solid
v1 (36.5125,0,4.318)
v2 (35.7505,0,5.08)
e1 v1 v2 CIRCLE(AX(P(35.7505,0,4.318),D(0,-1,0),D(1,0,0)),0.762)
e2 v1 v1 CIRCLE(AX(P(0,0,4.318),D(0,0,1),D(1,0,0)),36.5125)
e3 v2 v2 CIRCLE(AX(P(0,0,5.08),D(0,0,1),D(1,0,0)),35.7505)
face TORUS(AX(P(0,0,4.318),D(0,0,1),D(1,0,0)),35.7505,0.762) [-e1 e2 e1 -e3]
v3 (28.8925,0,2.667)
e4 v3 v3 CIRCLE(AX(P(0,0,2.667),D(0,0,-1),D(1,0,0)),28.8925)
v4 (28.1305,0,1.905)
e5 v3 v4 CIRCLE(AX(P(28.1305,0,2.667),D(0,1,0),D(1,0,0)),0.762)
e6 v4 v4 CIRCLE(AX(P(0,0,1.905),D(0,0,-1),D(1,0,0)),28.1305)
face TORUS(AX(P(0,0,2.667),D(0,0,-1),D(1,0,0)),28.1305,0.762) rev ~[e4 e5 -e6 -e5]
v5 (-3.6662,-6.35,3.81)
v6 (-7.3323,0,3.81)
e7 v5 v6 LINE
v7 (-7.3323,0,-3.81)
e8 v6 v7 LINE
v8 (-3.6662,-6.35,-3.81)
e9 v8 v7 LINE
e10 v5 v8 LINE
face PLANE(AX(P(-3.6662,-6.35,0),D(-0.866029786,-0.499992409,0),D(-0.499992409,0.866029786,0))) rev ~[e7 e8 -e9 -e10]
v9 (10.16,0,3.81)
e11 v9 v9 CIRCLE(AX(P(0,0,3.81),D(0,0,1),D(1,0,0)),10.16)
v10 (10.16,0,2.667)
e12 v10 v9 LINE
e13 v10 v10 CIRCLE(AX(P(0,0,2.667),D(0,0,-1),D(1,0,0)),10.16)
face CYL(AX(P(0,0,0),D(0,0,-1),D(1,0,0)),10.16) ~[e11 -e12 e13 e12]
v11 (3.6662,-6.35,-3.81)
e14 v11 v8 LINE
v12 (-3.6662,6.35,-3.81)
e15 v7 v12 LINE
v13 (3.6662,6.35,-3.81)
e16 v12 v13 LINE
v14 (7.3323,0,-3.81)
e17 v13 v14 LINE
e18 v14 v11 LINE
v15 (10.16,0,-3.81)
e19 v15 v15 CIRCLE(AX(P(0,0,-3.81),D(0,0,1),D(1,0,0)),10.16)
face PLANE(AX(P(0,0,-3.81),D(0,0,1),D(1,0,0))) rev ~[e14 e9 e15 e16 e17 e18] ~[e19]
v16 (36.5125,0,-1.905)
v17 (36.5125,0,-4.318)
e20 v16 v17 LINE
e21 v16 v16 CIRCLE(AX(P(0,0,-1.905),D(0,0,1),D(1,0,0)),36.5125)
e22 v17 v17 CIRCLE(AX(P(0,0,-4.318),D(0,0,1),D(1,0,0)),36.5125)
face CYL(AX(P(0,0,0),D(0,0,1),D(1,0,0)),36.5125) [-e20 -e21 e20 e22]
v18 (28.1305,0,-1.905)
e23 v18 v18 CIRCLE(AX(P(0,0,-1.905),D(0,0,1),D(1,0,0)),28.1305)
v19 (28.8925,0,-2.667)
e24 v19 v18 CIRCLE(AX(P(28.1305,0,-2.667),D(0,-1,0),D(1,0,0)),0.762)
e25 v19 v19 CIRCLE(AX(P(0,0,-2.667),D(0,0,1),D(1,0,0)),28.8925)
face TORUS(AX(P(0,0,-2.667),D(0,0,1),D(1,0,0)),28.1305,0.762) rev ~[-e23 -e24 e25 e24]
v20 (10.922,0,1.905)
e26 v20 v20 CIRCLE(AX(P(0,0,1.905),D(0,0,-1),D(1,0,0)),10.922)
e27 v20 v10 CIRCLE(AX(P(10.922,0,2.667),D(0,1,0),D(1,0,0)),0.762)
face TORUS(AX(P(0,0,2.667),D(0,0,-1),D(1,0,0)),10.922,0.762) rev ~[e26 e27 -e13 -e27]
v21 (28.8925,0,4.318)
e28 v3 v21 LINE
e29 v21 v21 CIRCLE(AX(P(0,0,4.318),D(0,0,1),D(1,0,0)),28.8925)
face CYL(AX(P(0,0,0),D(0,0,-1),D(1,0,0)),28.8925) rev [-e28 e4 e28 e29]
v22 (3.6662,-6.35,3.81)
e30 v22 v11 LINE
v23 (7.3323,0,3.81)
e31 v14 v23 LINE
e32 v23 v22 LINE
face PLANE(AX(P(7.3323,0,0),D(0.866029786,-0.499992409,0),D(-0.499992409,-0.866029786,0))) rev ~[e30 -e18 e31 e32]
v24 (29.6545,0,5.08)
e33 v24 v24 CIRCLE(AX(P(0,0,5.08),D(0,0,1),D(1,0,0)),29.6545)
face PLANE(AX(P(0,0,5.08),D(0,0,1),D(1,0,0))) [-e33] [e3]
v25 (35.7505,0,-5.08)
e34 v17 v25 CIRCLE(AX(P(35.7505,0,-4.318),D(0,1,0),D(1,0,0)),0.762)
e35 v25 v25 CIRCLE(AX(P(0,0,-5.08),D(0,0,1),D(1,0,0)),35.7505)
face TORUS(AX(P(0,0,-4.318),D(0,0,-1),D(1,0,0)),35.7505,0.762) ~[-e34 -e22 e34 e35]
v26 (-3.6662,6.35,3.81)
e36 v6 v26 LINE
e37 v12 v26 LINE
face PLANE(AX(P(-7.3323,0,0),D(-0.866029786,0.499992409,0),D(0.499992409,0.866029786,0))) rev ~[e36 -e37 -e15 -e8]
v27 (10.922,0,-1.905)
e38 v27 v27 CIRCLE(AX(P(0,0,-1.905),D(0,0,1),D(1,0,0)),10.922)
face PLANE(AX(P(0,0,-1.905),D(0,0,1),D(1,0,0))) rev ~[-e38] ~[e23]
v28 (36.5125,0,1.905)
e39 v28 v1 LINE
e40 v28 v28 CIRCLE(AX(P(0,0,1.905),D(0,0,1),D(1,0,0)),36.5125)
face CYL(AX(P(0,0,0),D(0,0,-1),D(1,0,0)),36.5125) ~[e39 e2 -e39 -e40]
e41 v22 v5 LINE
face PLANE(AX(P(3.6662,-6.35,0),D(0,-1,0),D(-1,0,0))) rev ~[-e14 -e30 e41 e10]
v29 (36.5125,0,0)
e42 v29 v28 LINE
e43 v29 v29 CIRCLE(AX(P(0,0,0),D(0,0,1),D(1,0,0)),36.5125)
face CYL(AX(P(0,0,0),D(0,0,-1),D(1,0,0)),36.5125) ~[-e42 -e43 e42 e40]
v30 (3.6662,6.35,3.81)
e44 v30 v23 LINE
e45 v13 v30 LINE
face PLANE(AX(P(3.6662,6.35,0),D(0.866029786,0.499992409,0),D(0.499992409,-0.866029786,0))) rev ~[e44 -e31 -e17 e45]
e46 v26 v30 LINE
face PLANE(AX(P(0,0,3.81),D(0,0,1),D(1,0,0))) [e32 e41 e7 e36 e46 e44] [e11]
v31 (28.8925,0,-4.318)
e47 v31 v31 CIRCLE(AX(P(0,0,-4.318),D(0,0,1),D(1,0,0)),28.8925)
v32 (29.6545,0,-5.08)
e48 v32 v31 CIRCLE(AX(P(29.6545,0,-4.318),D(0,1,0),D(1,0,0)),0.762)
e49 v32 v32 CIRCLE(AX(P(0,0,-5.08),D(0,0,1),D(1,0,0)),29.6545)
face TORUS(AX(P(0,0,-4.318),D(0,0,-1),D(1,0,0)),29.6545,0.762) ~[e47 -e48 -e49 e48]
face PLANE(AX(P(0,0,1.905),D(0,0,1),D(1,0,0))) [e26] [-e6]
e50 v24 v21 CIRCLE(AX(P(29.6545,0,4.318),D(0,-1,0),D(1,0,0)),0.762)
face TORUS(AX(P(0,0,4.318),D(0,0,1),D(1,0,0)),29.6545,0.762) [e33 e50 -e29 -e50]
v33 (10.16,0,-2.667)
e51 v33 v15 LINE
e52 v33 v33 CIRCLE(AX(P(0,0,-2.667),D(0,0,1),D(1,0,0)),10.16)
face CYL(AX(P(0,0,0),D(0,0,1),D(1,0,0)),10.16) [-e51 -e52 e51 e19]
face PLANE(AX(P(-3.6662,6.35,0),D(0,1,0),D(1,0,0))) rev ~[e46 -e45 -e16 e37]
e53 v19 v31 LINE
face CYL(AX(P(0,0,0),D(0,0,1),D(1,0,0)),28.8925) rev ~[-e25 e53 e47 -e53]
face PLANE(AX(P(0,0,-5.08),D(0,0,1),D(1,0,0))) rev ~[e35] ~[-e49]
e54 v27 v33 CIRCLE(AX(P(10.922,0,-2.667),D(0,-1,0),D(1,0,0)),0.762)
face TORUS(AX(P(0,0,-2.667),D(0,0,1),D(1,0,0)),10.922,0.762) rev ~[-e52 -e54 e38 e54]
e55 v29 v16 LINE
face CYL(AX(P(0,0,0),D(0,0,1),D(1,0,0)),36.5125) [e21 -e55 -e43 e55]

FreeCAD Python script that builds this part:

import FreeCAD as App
import Part
import Sketcher
from FreeCAD import Vector
Q = App.Units.Quantity


def edges_at(feature, points):
    """Names of the edges that pass closest to the given points."""
    edges = feature.Shape.Edges
    near = lambda p: min(range(len(edges)), key=lambda i: edges[i].distToShape(Part.Vertex(*p))[0])
    return sorted({f"Edge{near(p) + 1}" for p in points})

doc = App.newDocument("Part")
body = doc.addObject("PartDesign::Body", "Body")

# Sketch on XY plane
sketch1 = doc.addObject("Sketcher::SketchObject", "Sketch")
body.addObject(sketch1)
sketch1.AttachmentSupport = (doc.XY_Plane, [""])
sketch1.MapMode = "FlatFace"
sketch1.addGeometry(Part.Circle(Vector(0, 0, 0), Vector(0, 0, 1), 36.5125), False)
sketch1.addConstraint(Sketcher.Constraint("Coincident", 0, 3, -1, 1))
sketch1.addConstraint(Sketcher.Constraint("Diameter", 0, Q("2.875 in")))
pad1 = doc.addObject("PartDesign::Pad", "Pad")
body.addObject(pad1)
pad1.Profile = sketch1
pad1.Length = Q("0.15 in")
pad1.Midplane = True

# Sketch on XY plane
sketch2 = doc.addObject("Sketcher::SketchObject", "Sketch001")
body.addObject(sketch2)
sketch2.AttachmentSupport = (doc.XY_Plane, [""])
sketch2.MapMode = "FlatFace"
sketch2.addGeometry(Part.Circle(Vector(0, 0, 0), Vector(0, 0, 1), 36.5125), False)
sketch2.addGeometry(Part.Circle(Vector(0, 0, 0), Vector(0, 0, 1), 28.8925), False)
sketch2.addConstraint(Sketcher.Constraint("Coincident", 0, 3, -1, 1))
sketch2.addConstraint(Sketcher.Constraint("Coincident", 1, 3, -1, 1))
sketch2.addConstraint(Sketcher.Constraint("Diameter", 1, Q("2.275 in")))
sketch2.addConstraint(Sketcher.Constraint("Diameter", 0, Q("2.875 in")))
pad2 = doc.addObject("PartDesign::Pad", "Pad001")
body.addObject(pad2)
pad2.Profile = sketch2
pad2.Length = Q("0.4 in")
pad2.Midplane = True

# Sketch on XY plane
sketch3 = doc.addObject("Sketcher::SketchObject", "Sketch002")
body.addObject(sketch3)
sketch3.AttachmentSupport = (doc.XY_Plane, [""])
sketch3.MapMode = "FlatFace"
sketch3.addGeometry(Part.Circle(Vector(0, 0, 0), Vector(0, 0, 1), 10.16), False)
sketch3.addConstraint(Sketcher.Constraint("Coincident", 0, 3, -1, 1))
sketch3.addConstraint(Sketcher.Constraint("Diameter", 0, Q("0.8 in")))
pad3 = doc.addObject("PartDesign::Pad", "Pad002")
body.addObject(pad3)
pad3.Profile = sketch3
pad3.Length = Q("0.3 in")
pad3.Midplane = True

# Sketch on XY plane
sketch4 = doc.addObject("Sketcher::SketchObject", "Sketch003")
body.addObject(sketch4)
sketch4.AttachmentSupport = (doc.XY_Plane, [""])
sketch4.MapMode = "FlatFace"
sketch4.addGeometry(Part.LineSegment(Vector(3.6662, -6.35, 0), Vector(7.3323, 0, 0)), False)
sketch4.addGeometry(Part.LineSegment(Vector(7.3323, 0, 0), Vector(3.6662, 6.35, 0)), False)
sketch4.addGeometry(Part.LineSegment(Vector(3.6662, 6.35, 0), Vector(-3.6662, 6.35, 0)), False)
sketch4.addGeometry(Part.LineSegment(Vector(-3.6662, 6.35, 0), Vector(-7.3323, 0, 0)), False)
sketch4.addGeometry(Part.LineSegment(Vector(-7.3323, 0, 0), Vector(-3.6662, -6.35, 0)), False)
sketch4.addGeometry(Part.LineSegment(Vector(-3.6662, -6.35, 0), Vector(3.6662, -6.35, 0)), False)
sketch4.addConstraint(Sketcher.Constraint("Coincident", 0, 2, 1, 1))
sketch4.addConstraint(Sketcher.Constraint("Coincident", 1, 2, 2, 1))
sketch4.addConstraint(Sketcher.Constraint("Coincident", 2, 2, 3, 1))
sketch4.addConstraint(Sketcher.Constraint("Coincident", 3, 2, 4, 1))
sketch4.addConstraint(Sketcher.Constraint("Coincident", 4, 2, 5, 1))
sketch4.addConstraint(Sketcher.Constraint("Coincident", 5, 2, 0, 1))
sketch4.addConstraint(Sketcher.Constraint("Horizontal", 2))
sketch4.addConstraint(Sketcher.Constraint("Horizontal", 5))
sketch4.addConstraint(Sketcher.Constraint("Symmetric", 0, 2, 3, 2, -1, 1))
sketch4.addConstraint(Sketcher.Constraint("Symmetric", 1, 2, 4, 2, -1, 1))
sketch4.addConstraint(Sketcher.Constraint("PointOnObject", 0, 2, -1))
sketch4.addConstraint(Sketcher.Constraint("Parallel", 0, 3))
sketch4.addConstraint(Sketcher.Constraint("Vertical", 2, 2, 4, 2))
sketch4.addConstraint(Sketcher.Constraint("DistanceY", 4, 2, 2, 2, Q("0.5 in")))
sketch4.addConstraint(Sketcher.Constraint("Angle", 0, Q("60.0005 deg")))
sketch4.addConstraint(Sketcher.Constraint("DistanceX", 2, 2, 0, 2, Q("0.433 in")))
pocket1 = doc.addObject("PartDesign::Pocket", "Pocket")
body.addObject(pocket1)
pocket1.Profile = sketch4
pocket1.Length = Q("0.3 in")
pocket1.Midplane = True
doc.recompute()

fillet = doc.addObject("PartDesign::Fillet", "Fillet")
body.addObject(fillet)
fillet.Base = (pocket1, edges_at(pocket1, [
    (-28.892, 0, -5.08),
    (-28.892, 0, 5.08),
    (-10.16, 0, 1.905),
    (-10.16, 0, -1.905),
    (-28.892, 0, 1.905),
    (-28.892, 0, -1.905),
    (-36.513, 0, 5.08),
    (-36.513, 0, -5.08),
]))
fillet.Radius = Q("0.03 in")

doc.recompute()
